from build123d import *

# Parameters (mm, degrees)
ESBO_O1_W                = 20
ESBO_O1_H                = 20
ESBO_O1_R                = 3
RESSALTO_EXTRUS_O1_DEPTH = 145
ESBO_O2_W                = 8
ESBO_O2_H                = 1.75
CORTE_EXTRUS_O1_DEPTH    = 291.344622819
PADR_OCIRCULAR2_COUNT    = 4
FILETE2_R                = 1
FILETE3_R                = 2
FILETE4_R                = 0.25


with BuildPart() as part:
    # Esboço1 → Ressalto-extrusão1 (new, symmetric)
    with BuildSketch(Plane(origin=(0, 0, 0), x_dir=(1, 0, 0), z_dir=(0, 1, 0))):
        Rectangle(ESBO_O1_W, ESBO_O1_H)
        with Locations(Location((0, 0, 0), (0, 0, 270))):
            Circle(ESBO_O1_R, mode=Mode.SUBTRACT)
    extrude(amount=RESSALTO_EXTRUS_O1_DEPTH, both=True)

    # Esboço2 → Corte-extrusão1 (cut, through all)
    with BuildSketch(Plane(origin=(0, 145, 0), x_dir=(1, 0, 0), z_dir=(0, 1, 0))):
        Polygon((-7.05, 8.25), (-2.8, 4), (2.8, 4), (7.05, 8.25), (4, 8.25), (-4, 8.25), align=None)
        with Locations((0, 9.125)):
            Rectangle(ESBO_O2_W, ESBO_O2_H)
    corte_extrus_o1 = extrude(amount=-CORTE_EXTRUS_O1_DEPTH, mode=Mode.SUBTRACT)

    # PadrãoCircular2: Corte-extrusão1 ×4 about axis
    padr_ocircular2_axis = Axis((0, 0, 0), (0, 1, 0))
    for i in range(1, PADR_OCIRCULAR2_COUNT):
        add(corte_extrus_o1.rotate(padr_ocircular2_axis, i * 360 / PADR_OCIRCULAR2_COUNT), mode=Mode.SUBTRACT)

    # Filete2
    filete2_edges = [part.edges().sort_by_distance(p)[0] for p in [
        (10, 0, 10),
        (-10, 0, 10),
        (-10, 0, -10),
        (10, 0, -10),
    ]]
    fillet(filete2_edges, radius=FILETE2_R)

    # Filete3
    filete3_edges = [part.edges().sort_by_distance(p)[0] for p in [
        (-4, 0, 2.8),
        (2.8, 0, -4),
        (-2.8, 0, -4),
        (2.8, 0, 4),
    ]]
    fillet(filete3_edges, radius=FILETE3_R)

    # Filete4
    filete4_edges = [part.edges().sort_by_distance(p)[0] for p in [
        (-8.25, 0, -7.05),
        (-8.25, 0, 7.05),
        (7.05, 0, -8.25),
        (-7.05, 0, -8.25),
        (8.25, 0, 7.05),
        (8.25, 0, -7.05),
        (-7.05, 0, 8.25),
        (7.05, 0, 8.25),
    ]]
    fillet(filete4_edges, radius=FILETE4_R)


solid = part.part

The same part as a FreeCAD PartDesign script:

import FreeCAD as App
import Part
import Sketcher
from FreeCAD import Vector
Q = App.Units.Quantity


def edges_at(feature, points):
    """Names of the edges that pass closest to the given points."""
    edges = feature.Shape.Edges
    near = lambda p: min(range(len(edges)), key=lambda i: edges[i].distToShape(Part.Vertex(*p))[0])
    return sorted({f"Edge{near(p) + 1}" for p in points})

doc = App.newDocument("Part")
params = doc.addObject("Spreadsheet::Sheet", "Params")
for row, (alias, value) in enumerate([
    ("sketch1_diameter", "6 mm"),
    ("sketch1_width", "20 mm"),
    ("pad1_length", "290 mm"),
    ("sketch2_width", "8 mm"),
    ("sketch2_width2", "5.6 mm"),
    ("sketch2_width3", "3.05 mm"),
    ("fillet_radius", "1 mm"),
    ("fillet2_radius", "2 mm"),
    ("fillet3_radius", "0.25 mm"),
], start=1):
    params.set(f"A{row}", alias)
    params.set(f"B{row}", "=" + value)
    params.setAlias(f"B{row}", alias)

body = doc.addObject("PartDesign::Body", "Body")

# Sketch on XZ plane
sketch1 = doc.addObject("Sketcher::SketchObject", "Sketch")
body.addObject(sketch1)
sketch1.AttachmentSupport = (doc.XZ_Plane, [""])
sketch1.MapMode = "FlatFace"
sketch1.addGeometry(Part.LineSegment(Vector(-10, -10, 0), Vector(-10, 10, 0)), False)
sketch1.addGeometry(Part.LineSegment(Vector(-10, 10, 0), Vector(10, 10, 0)), False)
sketch1.addGeometry(Part.LineSegment(Vector(10, 10, 0), Vector(10, -10, 0)), False)
sketch1.addGeometry(Part.LineSegment(Vector(10, -10, 0), Vector(-10, -10, 0)), False)
sketch1.addGeometry(Part.Circle(Vector(0, 0, 0), Vector(0, 0, 1), 3), False)
sketch1.addConstraint(Sketcher.Constraint("Coincident", 0, 2, 1, 1))
sketch1.addConstraint(Sketcher.Constraint("Coincident", 1, 2, 2, 1))
sketch1.addConstraint(Sketcher.Constraint("Coincident", 2, 2, 3, 1))
sketch1.addConstraint(Sketcher.Constraint("Coincident", 3, 2, 0, 1))
sketch1.addConstraint(Sketcher.Constraint("Vertical", 0))
sketch1.addConstraint(Sketcher.Constraint("Horizontal", 1))
sketch1.addConstraint(Sketcher.Constraint("Vertical", 2))
sketch1.addConstraint(Sketcher.Constraint("Horizontal", 3))
sketch1.addConstraint(Sketcher.Constraint("Coincident", 4, 3, -1, 1))
sketch1.addConstraint(Sketcher.Constraint("Symmetric", 0, 2, 2, 2, -1, 1))
sketch1.addConstraint(Sketcher.Constraint("Equal", 3, 0))
sketch1.addConstraint(Sketcher.Constraint("Diameter", 4, Q("6 mm")))
sketch1.addConstraint(Sketcher.Constraint("DistanceX", 1, 1, 1, 2, Q("20 mm")))
sketch1.setExpression("Constraints[11]", "Params.sketch1_diameter")
sketch1.setExpression("Constraints[12]", "Params.sketch1_width")
pad1 = doc.addObject("PartDesign::Pad", "Pad")
body.addObject(pad1)
pad1.Profile = sketch1
pad1.setExpression("Length", "Params.pad1_length")
pad1.Midplane = True

# Sketch on XZ plane
sketch2 = doc.addObject("Sketcher::SketchObject", "Sketch001")
body.addObject(sketch2)
sketch2.AttachmentSupport = (doc.XZ_Plane, [""])
sketch2.MapMode = "FlatFace"
sketch2.AttachmentOffset = App.Placement(Vector(0, 0, -145), App.Rotation())
sketch2.addGeometry(Part.LineSegment(Vector(-7, -8.2, 0), Vector(-2.8, -4, 0)), False)
sketch2.addGeometry(Part.LineSegment(Vector(-2.8, -4, 0), Vector(2.8, -4, 0)), False)
sketch2.addGeometry(Part.LineSegment(Vector(2.8, -4, 0), Vector(7, -8.2, 0)), False)
sketch2.addGeometry(Part.LineSegment(Vector(7, -8.2, 0), Vector(4, -8.2, 0)), False)
sketch2.addGeometry(Part.LineSegment(Vector(4, -8.2, 0), Vector(4, -10, 0)), False)
sketch2.addGeometry(Part.LineSegment(Vector(4, -10, 0), Vector(-4, -10, 0)), False)
sketch2.addGeometry(Part.LineSegment(Vector(-4, -10, 0), Vector(-4, -8.2, 0)), False)
sketch2.addGeometry(Part.LineSegment(Vector(-4, -8.2, 0), Vector(-7, -8.2, 0)), False)
sketch2.addConstraint(Sketcher.Constraint("Coincident", 0, 2, 1, 1))
sketch2.addConstraint(Sketcher.Constraint("Coincident", 1, 2, 2, 1))
sketch2.addConstraint(Sketcher.Constraint("Coincident", 2, 2, 3, 1))
sketch2.addConstraint(Sketcher.Constraint("Coincident", 3, 2, 4, 1))
sketch2.addConstraint(Sketcher.Constraint("Coincident", 4, 2, 5, 1))
sketch2.addConstraint(Sketcher.Constraint("Coincident", 5, 2, 6, 1))
sketch2.addConstraint(Sketcher.Constraint("Coincident", 6, 2, 7, 1))
sketch2.addConstraint(Sketcher.Constraint("Coincident", 7, 2, 0, 1))
sketch2.addConstraint(Sketcher.Constraint("Horizontal", 1))
sketch2.addConstraint(Sketcher.Constraint("Horizontal", 3))
sketch2.addConstraint(Sketcher.Constraint("Vertical", 4))
sketch2.addConstraint(Sketcher.Constraint("Horizontal", 5))
sketch2.addConstraint(Sketcher.Constraint("Vertical", 6))
sketch2.addConstraint(Sketcher.Constraint("Horizontal", 7))
sketch2.addConstraint(Sketcher.Constraint("Symmetric", 3, 2, 6, 2, -2))
sketch2.addConstraint(Sketcher.Constraint("Perpendicular", 0, 2))
sketch2.addConstraint(Sketcher.Constraint("Equal", 3, 7))
sketch2.addConstraint(Sketcher.Constraint("Equal", 0, 2))
sketch2.addConstraint(Sketcher.Constraint("DistanceX", 5, 2, 5, 1, Q("8 mm")))
sketch2.addConstraint(Sketcher.Constraint("DistanceX", 1, 1, 1, 2, Q("5.6 mm")))
sketch2.addConstraint(Sketcher.Constraint("DistanceY", 0, 2, -1, 1, Q("4 mm")))
sketch2.addConstraint(Sketcher.Constraint("DistanceY", 4, 2, -1, 1, Q("10 mm")))
sketch2.addConstraint(Sketcher.Constraint("DistanceX", 3, 2, 3, 1, Q("3.05 mm")))
sketch2.setExpression("Constraints[18]", "Params.sketch2_width")
sketch2.setExpression("Constraints[19]", "Params.sketch2_width2")
sketch2.setExpression("Constraints[22]", "Params.sketch2_width3")
pocket1 = doc.addObject("PartDesign::Pocket", "Pocket")
body.addObject(pocket1)
pocket1.Profile = sketch2
pocket1.Type = "ThroughAll"
pocket1.Reversed = True
doc.recompute()

polarpattern = doc.addObject("PartDesign::PolarPattern", "PolarPattern")
body.addObject(polarpattern)
polarpattern.Originals = [pocket1]
polarpattern.Axis = (doc.Y_Axis, [""])
polarpattern.Angle = 360
polarpattern.Occurrences = 4
body.Tip = polarpattern
doc.recompute()

fillet = doc.addObject("PartDesign::Fillet", "Fillet")
body.addObject(fillet)
fillet.Base = (polarpattern, edges_at(polarpattern, [
    (10, 0, 10),
    (-10, 0, 10),
    (-10, 0, -10),
    (10, 0, -10),
]))
fillet.setExpression("Radius", "Params.fillet_radius")
doc.recompute()

fillet2 = doc.addObject("PartDesign::Fillet", "Fillet001")
body.addObject(fillet2)
fillet2.Base = (fillet, edges_at(fillet, [
    (-4, 0, 2.8),
    (2.8, 0, -4),
    (-2.8, 0, -4),
    (2.8, 0, 4),
]))
fillet2.setExpression("Radius", "Params.fillet2_radius")
doc.recompute()

fillet3 = doc.addObject("PartDesign::Fillet", "Fillet002")
body.addObject(fillet3)
fillet3.Base = (fillet2, edges_at(fillet2, [
    (-8.25, 0, -7.05),
    (-8.25, 0, 7.05),
    (7.05, 0, -8.25),
    (-7.05, 0, -8.25),
    (8.25, 0, 7.05),
    (8.25, 0, -7.05),
    (-7.05, 0, 8.25),
    (7.05, 0, 8.25),
]))
fillet3.setExpression("Radius", "Params.fillet3_radius")

doc.recompute()
